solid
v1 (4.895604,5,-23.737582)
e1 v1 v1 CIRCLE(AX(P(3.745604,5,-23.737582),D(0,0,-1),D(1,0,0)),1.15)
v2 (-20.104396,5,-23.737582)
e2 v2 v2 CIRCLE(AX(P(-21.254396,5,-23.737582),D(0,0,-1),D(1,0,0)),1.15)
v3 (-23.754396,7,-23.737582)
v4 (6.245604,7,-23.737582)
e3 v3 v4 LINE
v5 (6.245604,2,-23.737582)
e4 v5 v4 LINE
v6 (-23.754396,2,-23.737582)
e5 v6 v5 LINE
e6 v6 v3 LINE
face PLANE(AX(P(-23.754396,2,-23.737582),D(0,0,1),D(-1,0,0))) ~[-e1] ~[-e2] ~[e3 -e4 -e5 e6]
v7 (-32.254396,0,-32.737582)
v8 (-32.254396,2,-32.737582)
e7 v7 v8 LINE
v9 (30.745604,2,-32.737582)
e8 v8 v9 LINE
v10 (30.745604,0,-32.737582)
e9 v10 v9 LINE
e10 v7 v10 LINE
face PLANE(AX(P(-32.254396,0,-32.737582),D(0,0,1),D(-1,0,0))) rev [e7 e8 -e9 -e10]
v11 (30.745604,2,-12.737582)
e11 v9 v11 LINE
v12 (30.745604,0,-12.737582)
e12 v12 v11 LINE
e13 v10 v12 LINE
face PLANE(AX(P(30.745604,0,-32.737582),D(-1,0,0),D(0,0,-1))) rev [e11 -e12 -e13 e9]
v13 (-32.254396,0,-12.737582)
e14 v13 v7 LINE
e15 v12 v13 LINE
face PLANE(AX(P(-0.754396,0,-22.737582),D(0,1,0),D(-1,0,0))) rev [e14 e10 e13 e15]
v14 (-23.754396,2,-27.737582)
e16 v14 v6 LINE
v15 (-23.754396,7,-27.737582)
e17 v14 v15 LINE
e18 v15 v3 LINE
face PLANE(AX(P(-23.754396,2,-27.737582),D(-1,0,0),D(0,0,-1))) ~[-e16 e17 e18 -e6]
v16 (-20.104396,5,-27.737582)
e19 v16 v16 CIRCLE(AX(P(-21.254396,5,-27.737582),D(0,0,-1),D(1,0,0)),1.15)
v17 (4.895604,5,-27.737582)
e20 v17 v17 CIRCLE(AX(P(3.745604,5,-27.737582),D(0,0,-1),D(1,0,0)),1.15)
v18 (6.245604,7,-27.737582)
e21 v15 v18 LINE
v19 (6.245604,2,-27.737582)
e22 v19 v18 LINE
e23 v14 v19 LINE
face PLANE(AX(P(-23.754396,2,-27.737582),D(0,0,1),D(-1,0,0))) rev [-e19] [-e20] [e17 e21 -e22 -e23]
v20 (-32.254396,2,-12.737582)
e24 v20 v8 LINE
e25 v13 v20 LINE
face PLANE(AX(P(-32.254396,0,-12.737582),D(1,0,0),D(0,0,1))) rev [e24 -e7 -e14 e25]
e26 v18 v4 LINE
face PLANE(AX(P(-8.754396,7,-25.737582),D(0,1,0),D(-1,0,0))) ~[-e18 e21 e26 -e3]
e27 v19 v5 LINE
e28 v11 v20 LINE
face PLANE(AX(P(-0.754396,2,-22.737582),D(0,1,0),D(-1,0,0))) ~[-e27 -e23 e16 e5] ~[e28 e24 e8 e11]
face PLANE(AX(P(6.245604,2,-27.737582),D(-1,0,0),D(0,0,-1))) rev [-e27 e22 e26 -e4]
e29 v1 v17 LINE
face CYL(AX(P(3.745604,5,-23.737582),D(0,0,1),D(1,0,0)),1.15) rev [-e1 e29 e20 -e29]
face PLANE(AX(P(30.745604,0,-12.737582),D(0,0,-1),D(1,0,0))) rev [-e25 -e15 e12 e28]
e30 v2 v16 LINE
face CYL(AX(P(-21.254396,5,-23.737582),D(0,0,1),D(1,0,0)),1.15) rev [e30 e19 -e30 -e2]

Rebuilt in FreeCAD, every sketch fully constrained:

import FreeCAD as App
import Part
import Sketcher
from FreeCAD import Vector
Q = App.Units.Quantity


def add_polygon(sketch, points):
    """Adds a closed chain of lines whose ends are joined by coincident constraints."""
    first, n = sketch.GeometryCount, len(points)
    for a, b in zip(points, points[1:] + points[:1]):
        sketch.addGeometry(Part.LineSegment(App.Vector(*a, 0), App.Vector(*b, 0)), False)
    for i in range(n):
        sketch.addConstraint(Sketcher.Constraint("Coincident", first + i, 2, first + (i + 1) % n, 1))

doc = App.newDocument("Part")
body = doc.addObject("PartDesign::Body", "Body")

# Sketch on XZ plane
sketch1 = doc.addObject("Sketcher::SketchObject", "Sketch")
body.addObject(sketch1)
sketch1.AttachmentSupport = (doc.XZ_Plane, [""])
sketch1.MapMode = "FlatFace"
add_polygon(sketch1, [(-32, -13), (-32, -33), (31, -33), (31, -13)])  # lines 0-3
sketch1.addConstraint([
    Sketcher.Constraint("Vertical", 0),
    Sketcher.Constraint("Horizontal", 1),
    Sketcher.Constraint("Vertical", 2),
    Sketcher.Constraint("Horizontal", 3),
    Sketcher.Constraint("DistanceX", 1, 1, 1, 2, Q("63 mm")),
    Sketcher.Constraint("DistanceY", 0, 2, 0, 1, Q("20 mm")),
    Sketcher.Constraint("DistanceX", 0, 2, -1, 1, Q("32.254396 mm")),
    Sketcher.Constraint("DistanceY", 0, 2, -1, 1, Q("32.737582 mm")),
])
pad1 = doc.addObject("PartDesign::Pad", "Pad")
body.addObject(pad1)
pad1.Profile = sketch1
pad1.Length = 2

# Sketch on XZ plane
sketch2 = doc.addObject("Sketcher::SketchObject", "Sketch001")
body.addObject(sketch2)
sketch2.AttachmentSupport = (doc.XZ_Plane, [""])
sketch2.MapMode = "FlatFace"
sketch2.AttachmentOffset = App.Placement(Vector(0, 0, 2), App.Rotation())
add_polygon(sketch2, [(-23.8, -23.7), (-23.8, -27.7), (6.2, -27.7), (6.2, -23.7)])  # lines 0-3
sketch2.addConstraint([
    Sketcher.Constraint("Vertical", 0),
    Sketcher.Constraint("Horizontal", 1),
    Sketcher.Constraint("Vertical", 2),
    Sketcher.Constraint("Horizontal", 3),
    Sketcher.Constraint("DistanceX", 1, 1, 1, 2, Q("30 mm")),
    Sketcher.Constraint("DistanceY", 0, 2, 0, 1, Q("4 mm")),
    Sketcher.Constraint("DistanceY", 0, 2, -1, 1, Q("27.737582 mm")),
    Sketcher.Constraint("DistanceX", 0, 2, -1, 1, Q("23.754396 mm")),
])
pad2 = doc.addObject("PartDesign::Pad", "Pad001")
body.addObject(pad2)
pad2.Profile = sketch2
pad2.Length = 5

# Sketch on XY plane
sketch3 = doc.addObject("Sketcher::SketchObject", "Sketch002")
body.addObject(sketch3)
sketch3.AttachmentSupport = (doc.XY_Plane, [""])
sketch3.MapMode = "FlatFace"
sketch3.AttachmentOffset = App.Placement(Vector(0, 0, -23.737582), App.Rotation())
sketch3.addGeometry([
    Part.Circle(Vector(-21.3, -5, 0), Vector(0, 0, 1), 1.1),
    Part.Circle(Vector(3.7, -5, 0), Vector(0, 0, 1), 1.1),
], False)
sketch3.addConstraint([
    Sketcher.Constraint("Equal", 0, 1),
    Sketcher.Constraint("Horizontal", 0, 3, 1, 3),
    Sketcher.Constraint("Diameter", 0, Q("2.3 mm")),
    Sketcher.Constraint("DistanceY", 0, 3, -1, 1, Q("5 mm")),
    Sketcher.Constraint("DistanceX", 0, 3, 1, 3, Q("25 mm")),
    Sketcher.Constraint("DistanceX", 0, 3, -1, 1, Q("21.254396 mm")),
])
pocket1 = doc.addObject("PartDesign::Pocket", "Pocket")
body.addObject(pocket1)
pocket1.Profile = sketch3
pocket1.Length = 25
body2 = doc.addObject("PartDesign::Body", "Body001")
doc.recompute()

mirroring = doc.addObject("Part::Mirroring", "Mirroring")
mirroring.Source = body
mirroring.Base = Vector(0, 0, 0)
mirroring.Normal = Vector(0, -1, 0)
body2.BaseFeature = mirroring
doc.recompute()
body.Visibility = False
mirroring.Visibility = False

doc.recompute()
